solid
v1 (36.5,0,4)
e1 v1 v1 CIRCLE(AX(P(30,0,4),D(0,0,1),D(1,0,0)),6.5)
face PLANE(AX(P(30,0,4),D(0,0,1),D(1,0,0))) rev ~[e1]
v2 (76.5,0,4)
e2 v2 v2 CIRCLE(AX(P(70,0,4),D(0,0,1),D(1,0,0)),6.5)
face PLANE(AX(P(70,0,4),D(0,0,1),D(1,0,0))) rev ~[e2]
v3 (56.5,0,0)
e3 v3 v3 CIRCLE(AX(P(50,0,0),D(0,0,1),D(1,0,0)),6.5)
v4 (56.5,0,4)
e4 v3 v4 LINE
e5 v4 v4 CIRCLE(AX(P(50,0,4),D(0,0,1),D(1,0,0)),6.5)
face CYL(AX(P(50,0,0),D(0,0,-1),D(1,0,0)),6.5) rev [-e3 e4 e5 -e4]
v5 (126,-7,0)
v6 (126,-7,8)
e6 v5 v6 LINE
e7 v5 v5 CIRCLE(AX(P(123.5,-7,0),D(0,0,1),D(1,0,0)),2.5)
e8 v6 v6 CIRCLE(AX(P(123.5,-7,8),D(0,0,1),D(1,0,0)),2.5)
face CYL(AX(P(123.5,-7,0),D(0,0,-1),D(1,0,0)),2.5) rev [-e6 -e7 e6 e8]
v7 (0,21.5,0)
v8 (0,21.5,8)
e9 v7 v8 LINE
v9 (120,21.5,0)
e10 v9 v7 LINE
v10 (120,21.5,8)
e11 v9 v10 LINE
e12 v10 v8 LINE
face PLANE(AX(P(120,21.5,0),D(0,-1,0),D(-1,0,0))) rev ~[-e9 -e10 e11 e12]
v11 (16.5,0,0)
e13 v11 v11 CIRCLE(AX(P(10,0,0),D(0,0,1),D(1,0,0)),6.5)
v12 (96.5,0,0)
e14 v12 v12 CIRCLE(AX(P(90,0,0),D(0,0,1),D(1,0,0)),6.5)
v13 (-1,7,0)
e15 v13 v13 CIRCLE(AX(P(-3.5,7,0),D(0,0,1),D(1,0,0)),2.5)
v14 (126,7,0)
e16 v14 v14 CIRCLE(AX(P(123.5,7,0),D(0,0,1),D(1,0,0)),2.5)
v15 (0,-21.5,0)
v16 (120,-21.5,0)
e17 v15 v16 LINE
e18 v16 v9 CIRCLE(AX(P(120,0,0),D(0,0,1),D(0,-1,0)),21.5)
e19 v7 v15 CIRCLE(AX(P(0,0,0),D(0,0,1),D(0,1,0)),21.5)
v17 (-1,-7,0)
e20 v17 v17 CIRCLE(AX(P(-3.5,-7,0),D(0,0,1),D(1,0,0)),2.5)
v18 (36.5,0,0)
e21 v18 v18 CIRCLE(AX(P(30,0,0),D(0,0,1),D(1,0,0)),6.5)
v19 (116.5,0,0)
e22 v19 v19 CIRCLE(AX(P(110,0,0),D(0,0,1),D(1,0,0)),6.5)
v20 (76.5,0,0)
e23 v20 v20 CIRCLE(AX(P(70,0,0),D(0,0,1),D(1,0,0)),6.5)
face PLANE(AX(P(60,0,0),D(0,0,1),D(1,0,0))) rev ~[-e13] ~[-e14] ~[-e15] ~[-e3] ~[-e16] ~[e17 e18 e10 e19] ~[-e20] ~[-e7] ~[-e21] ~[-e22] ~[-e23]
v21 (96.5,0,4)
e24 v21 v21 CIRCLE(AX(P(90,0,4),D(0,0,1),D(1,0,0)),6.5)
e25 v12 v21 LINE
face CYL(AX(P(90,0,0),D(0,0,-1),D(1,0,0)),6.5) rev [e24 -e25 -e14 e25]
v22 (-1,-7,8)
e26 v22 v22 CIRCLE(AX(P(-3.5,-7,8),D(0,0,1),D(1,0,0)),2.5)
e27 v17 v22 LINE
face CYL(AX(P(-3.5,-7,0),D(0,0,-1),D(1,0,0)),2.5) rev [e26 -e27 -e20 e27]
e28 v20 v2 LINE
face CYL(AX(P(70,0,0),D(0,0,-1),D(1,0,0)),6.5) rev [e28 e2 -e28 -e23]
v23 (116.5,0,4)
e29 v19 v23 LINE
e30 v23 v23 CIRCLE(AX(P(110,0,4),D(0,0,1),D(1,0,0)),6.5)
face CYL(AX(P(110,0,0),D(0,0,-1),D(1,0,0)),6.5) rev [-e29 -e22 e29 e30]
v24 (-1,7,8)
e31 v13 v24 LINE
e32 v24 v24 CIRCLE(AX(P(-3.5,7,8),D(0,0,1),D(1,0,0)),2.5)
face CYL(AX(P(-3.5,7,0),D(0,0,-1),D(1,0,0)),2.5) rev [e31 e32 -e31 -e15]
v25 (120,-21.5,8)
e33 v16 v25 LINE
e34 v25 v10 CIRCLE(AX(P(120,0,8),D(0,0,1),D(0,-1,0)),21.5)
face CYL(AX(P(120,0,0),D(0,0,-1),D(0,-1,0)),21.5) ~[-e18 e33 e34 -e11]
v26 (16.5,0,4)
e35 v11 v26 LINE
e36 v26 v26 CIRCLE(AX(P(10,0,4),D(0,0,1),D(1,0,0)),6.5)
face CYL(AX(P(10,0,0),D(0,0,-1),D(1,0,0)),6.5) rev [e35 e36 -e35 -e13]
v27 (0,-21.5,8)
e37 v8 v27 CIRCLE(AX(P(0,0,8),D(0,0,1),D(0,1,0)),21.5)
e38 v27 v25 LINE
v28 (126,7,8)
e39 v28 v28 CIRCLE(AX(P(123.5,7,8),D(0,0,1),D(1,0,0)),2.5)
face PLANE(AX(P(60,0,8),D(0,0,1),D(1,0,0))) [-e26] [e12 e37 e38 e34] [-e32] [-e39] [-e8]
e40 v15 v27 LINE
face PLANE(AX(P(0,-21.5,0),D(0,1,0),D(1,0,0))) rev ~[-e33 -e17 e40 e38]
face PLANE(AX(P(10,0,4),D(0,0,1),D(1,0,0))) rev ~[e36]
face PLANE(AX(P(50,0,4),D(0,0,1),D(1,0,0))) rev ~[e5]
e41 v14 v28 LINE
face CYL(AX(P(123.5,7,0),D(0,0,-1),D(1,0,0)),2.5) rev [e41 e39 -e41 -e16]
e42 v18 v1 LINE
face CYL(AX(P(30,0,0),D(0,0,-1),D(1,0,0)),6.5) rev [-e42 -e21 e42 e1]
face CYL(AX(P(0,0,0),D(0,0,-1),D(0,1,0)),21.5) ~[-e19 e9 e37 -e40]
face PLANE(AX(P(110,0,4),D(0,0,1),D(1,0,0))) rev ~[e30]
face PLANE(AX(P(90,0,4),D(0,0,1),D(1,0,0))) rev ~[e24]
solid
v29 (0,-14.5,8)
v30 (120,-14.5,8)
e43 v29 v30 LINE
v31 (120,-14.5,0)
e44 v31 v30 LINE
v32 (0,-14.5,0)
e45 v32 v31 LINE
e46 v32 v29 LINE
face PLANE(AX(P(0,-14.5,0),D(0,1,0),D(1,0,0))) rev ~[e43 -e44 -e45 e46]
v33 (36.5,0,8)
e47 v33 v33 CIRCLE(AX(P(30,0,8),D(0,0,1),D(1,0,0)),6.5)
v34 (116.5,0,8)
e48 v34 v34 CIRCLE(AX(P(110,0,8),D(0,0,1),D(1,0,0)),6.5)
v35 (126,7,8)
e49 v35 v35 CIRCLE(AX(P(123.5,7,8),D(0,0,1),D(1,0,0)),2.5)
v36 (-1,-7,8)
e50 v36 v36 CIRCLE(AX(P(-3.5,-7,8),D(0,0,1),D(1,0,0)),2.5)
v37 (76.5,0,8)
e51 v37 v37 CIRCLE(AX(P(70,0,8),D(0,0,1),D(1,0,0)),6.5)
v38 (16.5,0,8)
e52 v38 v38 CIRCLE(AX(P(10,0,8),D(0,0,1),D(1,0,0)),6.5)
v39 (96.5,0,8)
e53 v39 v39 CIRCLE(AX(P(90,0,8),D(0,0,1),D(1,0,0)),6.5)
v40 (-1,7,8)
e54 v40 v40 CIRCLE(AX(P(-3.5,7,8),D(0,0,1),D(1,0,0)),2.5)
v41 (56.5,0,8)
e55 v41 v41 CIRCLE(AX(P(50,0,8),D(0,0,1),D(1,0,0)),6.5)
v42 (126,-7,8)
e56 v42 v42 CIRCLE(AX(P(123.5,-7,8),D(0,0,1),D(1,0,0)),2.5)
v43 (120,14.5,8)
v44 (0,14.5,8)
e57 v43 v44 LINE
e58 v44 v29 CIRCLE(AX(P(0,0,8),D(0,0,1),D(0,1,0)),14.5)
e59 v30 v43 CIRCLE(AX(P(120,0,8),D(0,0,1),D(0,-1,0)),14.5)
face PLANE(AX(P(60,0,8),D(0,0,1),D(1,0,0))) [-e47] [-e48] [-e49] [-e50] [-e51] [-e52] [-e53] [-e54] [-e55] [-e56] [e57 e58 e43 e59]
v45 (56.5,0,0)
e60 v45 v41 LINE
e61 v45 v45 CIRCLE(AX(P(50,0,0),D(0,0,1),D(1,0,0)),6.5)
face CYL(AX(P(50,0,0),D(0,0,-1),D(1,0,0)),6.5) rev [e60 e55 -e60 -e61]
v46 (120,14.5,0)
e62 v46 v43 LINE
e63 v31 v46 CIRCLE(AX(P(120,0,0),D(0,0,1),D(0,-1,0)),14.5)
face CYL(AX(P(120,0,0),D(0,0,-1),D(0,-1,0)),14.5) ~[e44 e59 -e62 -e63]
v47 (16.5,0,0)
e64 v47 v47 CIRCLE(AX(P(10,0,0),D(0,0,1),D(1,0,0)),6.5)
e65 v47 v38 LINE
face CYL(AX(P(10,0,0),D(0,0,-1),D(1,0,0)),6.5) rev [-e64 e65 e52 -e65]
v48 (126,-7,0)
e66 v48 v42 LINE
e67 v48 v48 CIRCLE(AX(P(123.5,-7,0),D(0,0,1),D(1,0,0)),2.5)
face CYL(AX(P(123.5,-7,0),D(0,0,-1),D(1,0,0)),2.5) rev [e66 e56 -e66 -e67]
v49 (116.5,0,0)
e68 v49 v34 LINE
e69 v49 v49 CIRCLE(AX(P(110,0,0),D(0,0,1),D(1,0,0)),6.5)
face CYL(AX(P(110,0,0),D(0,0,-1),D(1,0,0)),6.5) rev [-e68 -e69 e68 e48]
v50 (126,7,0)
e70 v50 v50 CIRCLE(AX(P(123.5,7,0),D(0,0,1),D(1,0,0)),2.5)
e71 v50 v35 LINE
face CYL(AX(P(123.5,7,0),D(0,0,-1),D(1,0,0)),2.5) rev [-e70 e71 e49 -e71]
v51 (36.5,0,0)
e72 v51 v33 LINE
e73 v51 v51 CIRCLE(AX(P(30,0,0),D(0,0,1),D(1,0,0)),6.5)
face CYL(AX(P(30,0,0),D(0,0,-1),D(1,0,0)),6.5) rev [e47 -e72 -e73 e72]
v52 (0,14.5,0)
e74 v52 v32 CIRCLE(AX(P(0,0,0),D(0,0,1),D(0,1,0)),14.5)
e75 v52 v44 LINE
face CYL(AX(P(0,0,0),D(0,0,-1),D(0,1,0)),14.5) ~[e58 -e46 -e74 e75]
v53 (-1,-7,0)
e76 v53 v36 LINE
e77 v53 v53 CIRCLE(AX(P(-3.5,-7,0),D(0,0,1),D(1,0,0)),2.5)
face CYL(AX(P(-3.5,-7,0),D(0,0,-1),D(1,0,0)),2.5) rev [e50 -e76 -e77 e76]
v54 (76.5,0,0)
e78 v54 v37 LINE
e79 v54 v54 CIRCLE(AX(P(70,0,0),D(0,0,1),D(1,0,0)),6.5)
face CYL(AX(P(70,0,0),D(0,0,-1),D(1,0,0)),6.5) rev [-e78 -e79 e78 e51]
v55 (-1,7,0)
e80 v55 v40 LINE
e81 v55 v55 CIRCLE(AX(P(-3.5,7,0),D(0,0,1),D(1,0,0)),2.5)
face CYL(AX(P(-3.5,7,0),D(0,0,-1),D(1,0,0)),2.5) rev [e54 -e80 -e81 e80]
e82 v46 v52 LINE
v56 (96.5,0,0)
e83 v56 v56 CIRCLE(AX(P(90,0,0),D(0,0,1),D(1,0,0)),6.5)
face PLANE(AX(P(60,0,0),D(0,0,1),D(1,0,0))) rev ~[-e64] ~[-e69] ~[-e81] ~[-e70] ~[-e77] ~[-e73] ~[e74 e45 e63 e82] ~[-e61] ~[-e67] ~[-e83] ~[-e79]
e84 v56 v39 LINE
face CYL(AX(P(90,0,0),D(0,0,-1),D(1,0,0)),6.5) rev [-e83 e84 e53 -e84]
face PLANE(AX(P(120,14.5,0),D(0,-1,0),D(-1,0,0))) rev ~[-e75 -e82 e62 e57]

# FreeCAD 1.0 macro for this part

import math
import FreeCAD as App
import Part
import Sketcher
from FreeCAD import Vector
Q = App.Units.Quantity

doc = App.newDocument("Part")
body = doc.addObject("PartDesign::Body", "Body")

sketch1 = body.newObject("Sketcher::SketchObject", "Sketch")
sketch1.AttachmentSupport = (doc.getObject("XY_Plane"), [""])
sketch1.MapMode = "FlatFace"
sketch1.addGeometry(Part.LineSegment(Vector(120, 14.5, 0), Vector(0, 14.5, 0)), False)
sketch1.addGeometry(Part.ArcOfCircle(Part.Circle(Vector(0, 0, 0), Vector(0, 0, 1), 14.5), math.radians(90), math.radians(270)), False)
sketch1.addGeometry(Part.LineSegment(Vector(0, -14.5, 0), Vector(120, -14.5, 0)), False)
sketch1.addGeometry(Part.ArcOfCircle(Part.Circle(Vector(120, 0, 0), Vector(0, 0, 1), 14.5), math.radians(-90), math.radians(90)), False)
sketch1.addGeometry(Part.Circle(Vector(-3.5, -7, 0), Vector(0, 0, 1), 2.5), False)
sketch1.addGeometry(Part.Circle(Vector(123.5, -7, 0), Vector(0, 0, 1), 2.5), False)
sketch1.addGeometry(Part.Circle(Vector(10, 0, 0), Vector(0, 0, 1), 6.5), False)
sketch1.addGeometry(Part.Circle(Vector(30, 0, 0), Vector(0, 0, 1), 6.5), False)
sketch1.addGeometry(Part.Circle(Vector(50, 0, 0), Vector(0, 0, 1), 6.5), False)
sketch1.addGeometry(Part.Circle(Vector(-3.5, 7, 0), Vector(0, 0, 1), 2.5), False)
sketch1.addGeometry(Part.Circle(Vector(70, 0, 0), Vector(0, 0, 1), 6.5), False)
sketch1.addGeometry(Part.Circle(Vector(90, 0, 0), Vector(0, 0, 1), 6.5), False)
sketch1.addGeometry(Part.Circle(Vector(110, 0, 0), Vector(0, 0, 1), 6.5), False)
sketch1.addGeometry(Part.Circle(Vector(123.5, 7, 0), Vector(0, 0, 1), 2.5), False)
sketch1.addConstraint(Sketcher.Constraint("Tangent", 0, 2, 1, 1))
sketch1.addConstraint(Sketcher.Constraint("Tangent", 1, 2, 2, 1))
sketch1.addConstraint(Sketcher.Constraint("Tangent", 2, 2, 3, 1))
sketch1.addConstraint(Sketcher.Constraint("Tangent", 3, 2, 0, 1))
sketch1.addConstraint(Sketcher.Constraint("Horizontal", 0))
sketch1.addConstraint(Sketcher.Constraint("Horizontal", 2))
sketch1.addConstraint(Sketcher.Constraint("Coincident", 1, 3, -1, 1))
sketch1.addConstraint(Sketcher.Constraint("Equal", 4, 5))
sketch1.addConstraint(Sketcher.Constraint("Equal", 6, 7))
sketch1.addConstraint(Sketcher.Constraint("Equal", 7, 8))
sketch1.addConstraint(Sketcher.Constraint("Equal", 5, 9))
sketch1.addConstraint(Sketcher.Constraint("Equal", 8, 10))
sketch1.addConstraint(Sketcher.Constraint("Equal", 10, 11))
sketch1.addConstraint(Sketcher.Constraint("Equal", 11, 12))
sketch1.addConstraint(Sketcher.Constraint("Equal", 9, 13))
sketch1.addConstraint(Sketcher.Constraint("Symmetric", 4, 3, 9, 3, -1))
sketch1.addConstraint(Sketcher.Constraint("Symmetric", 5, 3, 13, 3, -1))
sketch1.addConstraint(Sketcher.Constraint("PointOnObject", 6, 3, -1))
sketch1.addConstraint(Sketcher.Constraint("PointOnObject", 7, 3, -1))
sketch1.addConstraint(Sketcher.Constraint("PointOnObject", 8, 3, -1))
sketch1.addConstraint(Sketcher.Constraint("PointOnObject", 10, 3, -1))
sketch1.addConstraint(Sketcher.Constraint("PointOnObject", 11, 3, -1))
sketch1.addConstraint(Sketcher.Constraint("PointOnObject", 12, 3, -1))
sketch1.addConstraint(Sketcher.Constraint("Horizontal", 4, 3, 5, 3))
sketch1.addConstraint(Sketcher.Constraint("Diameter", 4, Q("5 mm")))
sketch1.addConstraint(Sketcher.Constraint("Diameter", 6, Q("13 mm")))
sketch1.addConstraint(Sketcher.Constraint("Radius", 1, Q("14.5 mm")))
sketch1.addConstraint(Sketcher.Constraint("DistanceX", 0, 2, 0, 1, Q("120 mm")))
sketch1.addConstraint(Sketcher.Constraint("DistanceY", 4, 3, -1, 1, Q("7 mm")))
sketch1.addConstraint(Sketcher.Constraint("DistanceX", -1, 1, 6, 3, Q("10 mm")))
sketch1.addConstraint(Sketcher.Constraint("DistanceX", -1, 1, 7, 3, Q("30 mm")))
sketch1.addConstraint(Sketcher.Constraint("DistanceX", -1, 1, 8, 3, Q("50 mm")))
sketch1.addConstraint(Sketcher.Constraint("DistanceX", -1, 1, 10, 3, Q("70 mm")))
sketch1.addConstraint(Sketcher.Constraint("DistanceX", -1, 1, 11, 3, Q("90 mm")))
sketch1.addConstraint(Sketcher.Constraint("DistanceX", -1, 1, 12, 3, Q("110 mm")))
sketch1.addConstraint(Sketcher.Constraint("DistanceX", 4, 3, 5, 3, Q("127 mm")))
sketch1.addConstraint(Sketcher.Constraint("DistanceX", 4, 3, -1, 1, Q("3.5 mm")))
pad1 = body.newObject("PartDesign::Pad", "Pad")
pad1.Profile = sketch1
pad1.Length = 8
body2 = doc.addObject("PartDesign::Body", "Body001")

sketch2 = body2.newObject("Sketcher::SketchObject", "Sketch001")
sketch2.AttachmentSupport = (doc.getObject("XY_Plane001"), [""])
sketch2.MapMode = "FlatFace"
sketch2.addGeometry(Part.LineSegment(Vector(120, 22, 0), Vector(0, 22, 0)), False)
sketch2.addGeometry(Part.ArcOfCircle(Part.Circle(Vector(0, 0, 0), Vector(0, 0, 1), 22), math.radians(90), math.radians(270)), False)
sketch2.addGeometry(Part.LineSegment(Vector(0, -22, 0), Vector(120, -22, 0)), False)
sketch2.addGeometry(Part.ArcOfCircle(Part.Circle(Vector(120, 0, 0), Vector(0, 0, 1), 22), math.radians(-90), math.radians(90)), False)
sketch2.addConstraint(Sketcher.Constraint("Tangent", 0, 2, 1, 1))
sketch2.addConstraint(Sketcher.Constraint("Tangent", 1, 2, 2, 1))
sketch2.addConstraint(Sketcher.Constraint("Tangent", 2, 2, 3, 1))
sketch2.addConstraint(Sketcher.Constraint("Tangent", 3, 2, 0, 1))
sketch2.addConstraint(Sketcher.Constraint("Horizontal", 0))
sketch2.addConstraint(Sketcher.Constraint("Horizontal", 2))
sketch2.addConstraint(Sketcher.Constraint("Coincident", 1, 3, -1, 1))
sketch2.addConstraint(Sketcher.Constraint("Radius", 1, Q("21.5 mm")))
sketch2.addConstraint(Sketcher.Constraint("DistanceX", 0, 2, 0, 1, Q("120 mm")))
pad2 = body2.newObject("PartDesign::Pad", "Pad001")
pad2.Profile = sketch2
pad2.Length = 8

sketch3 = body2.newObject("Sketcher::SketchObject", "Sketch002")
sketch3.AttachmentSupport = (doc.getObject("XY_Plane001"), [""])
sketch3.MapMode = "FlatFace"
sketch3.addGeometry(Part.Circle(Vector(-3.5, -7, 0), Vector(0, 0, 1), 2.5), False)
sketch3.addGeometry(Part.Circle(Vector(-3.5, 7, 0), Vector(0, 0, 1), 2.5), False)
sketch3.addGeometry(Part.Circle(Vector(123.5, 7, 0), Vector(0, 0, 1), 2.5), False)
sketch3.addGeometry(Part.Circle(Vector(123.5, -7, 0), Vector(0, 0, 1), 2.5), False)
sketch3.addConstraint(Sketcher.Constraint("Equal", 0, 1))
sketch3.addConstraint(Sketcher.Constraint("Equal", 1, 2))
sketch3.addConstraint(Sketcher.Constraint("Equal", 2, 3))
sketch3.addConstraint(Sketcher.Constraint("Symmetric", 0, 3, 1, 3, -1))
sketch3.addConstraint(Sketcher.Constraint("Symmetric", 2, 3, 3, 3, -1))
sketch3.addConstraint(Sketcher.Constraint("Horizontal", 1, 3, 2, 3))
sketch3.addConstraint(Sketcher.Constraint("Diameter", 0, Q("5 mm")))
sketch3.addConstraint(Sketcher.Constraint("DistanceY", 0, 3, -1, 1, Q("7 mm")))
sketch3.addConstraint(Sketcher.Constraint("DistanceX", 1, 3, 2, 3, Q("127 mm")))
sketch3.addConstraint(Sketcher.Constraint("DistanceX", 0, 3, -1, 1, Q("3.5 mm")))
pocket1 = body2.newObject("PartDesign::Pocket", "Pocket")
pocket1.Profile = sketch3
pocket1.Type = "ThroughAll"
pocket1.Reversed = True

sketch4 = body2.newObject("Sketcher::SketchObject", "Sketch003")
sketch4.AttachmentSupport = (doc.getObject("XY_Plane001"), [""])
sketch4.MapMode = "FlatFace"
sketch4.addGeometry(Part.Circle(Vector(10, 0, 0), Vector(0, 0, 1), 6), False)
sketch4.addGeometry(Part.Circle(Vector(30, 0, 0), Vector(0, 0, 1), 6), False)
sketch4.addGeometry(Part.Circle(Vector(50, 0, 0), Vector(0, 0, 1), 6), False)
sketch4.addGeometry(Part.Circle(Vector(70, 0, 0), Vector(0, 0, 1), 6), False)
sketch4.addGeometry(Part.Circle(Vector(90, 0, 0), Vector(0, 0, 1), 6), False)
sketch4.addGeometry(Part.Circle(Vector(110, 0, 0), Vector(0, 0, 1), 6), False)
sketch4.addConstraint(Sketcher.Constraint("Equal", 0, 1))
sketch4.addConstraint(Sketcher.Constraint("Equal", 1, 2))
sketch4.addConstraint(Sketcher.Constraint("Equal", 2, 3))
sketch4.addConstraint(Sketcher.Constraint("Equal", 3, 4))
sketch4.addConstraint(Sketcher.Constraint("Equal", 4, 5))
sketch4.addConstraint(Sketcher.Constraint("PointOnObject", 0, 3, -1))
sketch4.addConstraint(Sketcher.Constraint("PointOnObject", 1, 3, -1))
sketch4.addConstraint(Sketcher.Constraint("PointOnObject", 2, 3, -1))
sketch4.addConstraint(Sketcher.Constraint("PointOnObject", 3, 3, -1))
sketch4.addConstraint(Sketcher.Constraint("PointOnObject", 4, 3, -1))
sketch4.addConstraint(Sketcher.Constraint("PointOnObject", 5, 3, -1))
sketch4.addConstraint(Sketcher.Constraint("Diameter", 0, Q("13 mm")))
sketch4.addConstraint(Sketcher.Constraint("DistanceX", -1, 1, 0, 3, Q("10 mm")))
sketch4.addConstraint(Sketcher.Constraint("DistanceX", -1, 1, 1, 3, Q("30 mm")))
sketch4.addConstraint(Sketcher.Constraint("DistanceX", -1, 1, 2, 3, Q("50 mm")))
sketch4.addConstraint(Sketcher.Constraint("DistanceX", -1, 1, 3, 3, Q("70 mm")))
sketch4.addConstraint(Sketcher.Constraint("DistanceX", -1, 1, 4, 3, Q("90 mm")))
sketch4.addConstraint(Sketcher.Constraint("DistanceX", -1, 1, 5, 3, Q("110 mm")))
pocket2 = body2.newObject("PartDesign::Pocket", "Pocket001")
pocket2.Profile = sketch4
pocket2.Length = 4
pocket2.Reversed = True

doc.recompute()
